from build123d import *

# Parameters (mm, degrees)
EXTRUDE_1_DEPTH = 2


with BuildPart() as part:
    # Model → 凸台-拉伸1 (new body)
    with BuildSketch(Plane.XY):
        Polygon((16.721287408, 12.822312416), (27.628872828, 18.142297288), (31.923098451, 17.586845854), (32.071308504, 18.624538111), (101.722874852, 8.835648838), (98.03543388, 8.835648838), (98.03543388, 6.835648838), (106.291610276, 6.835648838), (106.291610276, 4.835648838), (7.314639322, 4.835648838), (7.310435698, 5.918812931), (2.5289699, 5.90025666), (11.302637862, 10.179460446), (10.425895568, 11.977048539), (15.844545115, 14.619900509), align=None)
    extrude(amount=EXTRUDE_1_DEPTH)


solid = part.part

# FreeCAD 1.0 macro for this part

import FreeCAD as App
import Part
import Sketcher

doc = App.newDocument("Part")
params = doc.addObject("Spreadsheet::Sheet", "Params")
for row, (alias, value) in enumerate([
    ("sketch1_height", "2 mm"),
    ("sketch1_height2", "2 mm"),
    ("sketch1_length", "2 mm"),
    ("sketch1_length2", "2 mm"),
    ("sketch1_length3", "4.33 mm"),
    ("pad1_length", "2 mm"),
], start=1):
    params.set(f"A{row}", alias)
    params.set(f"B{row}", "=" + value)
    params.setAlias(f"B{row}", alias)

body = doc.addObject("PartDesign::Body", "Body")

# Sketch on XY plane
sketch1 = body.newObject("Sketcher::SketchObject", "Sketch")
sketch1.AttachmentSupport = (doc.getObject("XY_Plane"), [""])
sketch1.MapMode = "FlatFace"
sketch1.addGeometry(Part.LineSegment(App.Vector(27.628873, 18.142297, 0), App.Vector(16.721287, 12.822312, 0)), False)
sketch1.addGeometry(Part.LineSegment(App.Vector(16.721287, 12.822312, 0), App.Vector(15.844545, 14.619901, 0)), False)
sketch1.addGeometry(Part.LineSegment(App.Vector(15.844545, 14.619901, 0), App.Vector(10.425896, 11.977049, 0)), False)
sketch1.addGeometry(Part.LineSegment(App.Vector(10.425896, 11.977049, 0), App.Vector(11.302638, 10.17946, 0)), False)
sketch1.addGeometry(Part.LineSegment(App.Vector(11.302638, 10.17946, 0), App.Vector(2.52897, 5.900257, 0)), False)
sketch1.addGeometry(Part.LineSegment(App.Vector(2.52897, 5.900257, 0), App.Vector(7.310436, 5.918813, 0)), False)
sketch1.addGeometry(Part.LineSegment(App.Vector(7.310436, 5.918813, 0), App.Vector(7.314639, 4.835649, 0)), False)
sketch1.addGeometry(Part.LineSegment(App.Vector(7.314639, 4.835649, 0), App.Vector(106.29161, 4.835649, 0)), False)
sketch1.addGeometry(Part.LineSegment(App.Vector(106.29161, 4.835649, 0), App.Vector(106.29161, 6.835649, 0)), False)
sketch1.addGeometry(Part.LineSegment(App.Vector(106.29161, 6.835649, 0), App.Vector(98.035434, 6.835649, 0)), False)
sketch1.addGeometry(Part.LineSegment(App.Vector(98.035434, 6.835649, 0), App.Vector(98.035434, 8.835649, 0)), False)
sketch1.addGeometry(Part.LineSegment(App.Vector(98.035434, 8.835649, 0), App.Vector(101.722875, 8.835649, 0)), False)
sketch1.addGeometry(Part.LineSegment(App.Vector(101.722875, 8.835649, 0), App.Vector(32.071309, 18.624538, 0)), False)
sketch1.addGeometry(Part.LineSegment(App.Vector(32.071309, 18.624538, 0), App.Vector(31.923098, 17.586846, 0)), False)
sketch1.addGeometry(Part.LineSegment(App.Vector(31.923098, 17.586846, 0), App.Vector(27.628873, 18.142297, 0)), False)
sketch1.addConstraint(Sketcher.Constraint("Coincident", 0, 2, 1, 1))
sketch1.addConstraint(Sketcher.Constraint("Coincident", 1, 2, 2, 1))
sketch1.addConstraint(Sketcher.Constraint("Coincident", 2, 2, 3, 1))
sketch1.addConstraint(Sketcher.Constraint("Coincident", 3, 2, 4, 1))
sketch1.addConstraint(Sketcher.Constraint("Coincident", 4, 2, 5, 1))
sketch1.addConstraint(Sketcher.Constraint("Coincident", 5, 2, 6, 1))
sketch1.addConstraint(Sketcher.Constraint("Coincident", 6, 2, 7, 1))
sketch1.addConstraint(Sketcher.Constraint("Coincident", 7, 2, 8, 1))
sketch1.addConstraint(Sketcher.Constraint("Coincident", 8, 2, 9, 1))
sketch1.addConstraint(Sketcher.Constraint("Coincident", 9, 2, 10, 1))
sketch1.addConstraint(Sketcher.Constraint("Coincident", 10, 2, 11, 1))
sketch1.addConstraint(Sketcher.Constraint("Coincident", 11, 2, 12, 1))
sketch1.addConstraint(Sketcher.Constraint("Coincident", 12, 2, 13, 1))
sketch1.addConstraint(Sketcher.Constraint("Coincident", 13, 2, 14, 1))
sketch1.addConstraint(Sketcher.Constraint("Coincident", 14, 2, 0, 1))
sketch1.addConstraint(Sketcher.Constraint("Horizontal", 7))
sketch1.addConstraint(Sketcher.Constraint("Vertical", 8))
sketch1.addConstraint(Sketcher.Constraint("Horizontal", 9))
sketch1.addConstraint(Sketcher.Constraint("Vertical", 10))
sketch1.addConstraint(Sketcher.Constraint("Horizontal", 11))
sketch1.addConstraint(Sketcher.Constraint("DistanceY", 8, 1, 8, 2, 2.0))
sketch1.addConstraint(Sketcher.Constraint("DistanceY", 10, 1, 10, 2, 2.0))
sketch1.addConstraint(Sketcher.Constraint("Distance", 1, 2.0))
sketch1.addConstraint(Sketcher.Constraint("Distance", 3, 2.0))
sketch1.addConstraint(Sketcher.Constraint("Distance", 14, 4.33))
sketch1.addConstraint(Sketcher.Constraint("DistanceX", 6, 2, 3, 2, 3.987999))
sketch1.addConstraint(Sketcher.Constraint("Distance", 0, 12.135801))
sketch1.addConstraint(Sketcher.Constraint("Distance", 2, 6.0288))
sketch1.addConstraint(Sketcher.Constraint("Distance", 4, 9.7616))
sketch1.addConstraint(Sketcher.Constraint("Distance", 5, 4.781502))
sketch1.addConstraint(Sketcher.Constraint("DistanceX", 7, 1, 7, 2, 98.976971))
sketch1.addConstraint(Sketcher.Constraint("DistanceX", 11, 1, 11, 2, 3.687441))
sketch1.addConstraint(Sketcher.Constraint("DistanceY", -1, 1, 1, 2, 14.619901))
sketch1.addConstraint(Sketcher.Constraint("DistanceX", -1, 1, 13, 2, 31.923098))
sketch1.addConstraint(Sketcher.Constraint("DistanceY", 5, 2, 0, 2, 6.903499))
sketch1.addConstraint(Sketcher.Constraint("DistanceY", 6, 2, 2, 2, 7.1414))
sketch1.addConstraint(Sketcher.Constraint("DistanceX", 9, 2, 9, 1, 8.256176))
sketch1.addConstraint(Sketcher.Constraint("DistanceY", -1, 1, 2, 2, 11.977049))
sketch1.addConstraint(Sketcher.Constraint("DistanceY", -1, 1, 3, 2, 10.17946))
sketch1.addConstraint(Sketcher.Constraint("DistanceX", -1, 1, 4, 2, 2.52897))
sketch1.addConstraint(Sketcher.Constraint("DistanceX", -1, 1, 6, 2, 7.314639))
sketch1.addConstraint(Sketcher.Constraint("DistanceX", -1, 1, 12, 2, 32.071309))
sketch1.addConstraint(Sketcher.Constraint("DistanceY", -1, 1, 12, 2, 18.624538))
sketch1.addConstraint(Sketcher.Constraint("DistanceY", 0, 2, 1, 2, 1.797588))
sketch1.addConstraint(Sketcher.Constraint("DistanceY", 13, 2, 14, 2, 0.555451))
sketch1.setExpression("Constraints[20]", "Params.sketch1_height")
sketch1.setExpression("Constraints[21]", "Params.sketch1_height2")
sketch1.setExpression("Constraints[22]", "Params.sketch1_length")
sketch1.setExpression("Constraints[23]", "Params.sketch1_length2")
sketch1.setExpression("Constraints[24]", "Params.sketch1_length3")
pad1 = body.newObject("PartDesign::Pad", "Pad")
pad1.Profile = sketch1
pad1.setExpression("Length", "Params.pad1_length")

doc.recompute()
